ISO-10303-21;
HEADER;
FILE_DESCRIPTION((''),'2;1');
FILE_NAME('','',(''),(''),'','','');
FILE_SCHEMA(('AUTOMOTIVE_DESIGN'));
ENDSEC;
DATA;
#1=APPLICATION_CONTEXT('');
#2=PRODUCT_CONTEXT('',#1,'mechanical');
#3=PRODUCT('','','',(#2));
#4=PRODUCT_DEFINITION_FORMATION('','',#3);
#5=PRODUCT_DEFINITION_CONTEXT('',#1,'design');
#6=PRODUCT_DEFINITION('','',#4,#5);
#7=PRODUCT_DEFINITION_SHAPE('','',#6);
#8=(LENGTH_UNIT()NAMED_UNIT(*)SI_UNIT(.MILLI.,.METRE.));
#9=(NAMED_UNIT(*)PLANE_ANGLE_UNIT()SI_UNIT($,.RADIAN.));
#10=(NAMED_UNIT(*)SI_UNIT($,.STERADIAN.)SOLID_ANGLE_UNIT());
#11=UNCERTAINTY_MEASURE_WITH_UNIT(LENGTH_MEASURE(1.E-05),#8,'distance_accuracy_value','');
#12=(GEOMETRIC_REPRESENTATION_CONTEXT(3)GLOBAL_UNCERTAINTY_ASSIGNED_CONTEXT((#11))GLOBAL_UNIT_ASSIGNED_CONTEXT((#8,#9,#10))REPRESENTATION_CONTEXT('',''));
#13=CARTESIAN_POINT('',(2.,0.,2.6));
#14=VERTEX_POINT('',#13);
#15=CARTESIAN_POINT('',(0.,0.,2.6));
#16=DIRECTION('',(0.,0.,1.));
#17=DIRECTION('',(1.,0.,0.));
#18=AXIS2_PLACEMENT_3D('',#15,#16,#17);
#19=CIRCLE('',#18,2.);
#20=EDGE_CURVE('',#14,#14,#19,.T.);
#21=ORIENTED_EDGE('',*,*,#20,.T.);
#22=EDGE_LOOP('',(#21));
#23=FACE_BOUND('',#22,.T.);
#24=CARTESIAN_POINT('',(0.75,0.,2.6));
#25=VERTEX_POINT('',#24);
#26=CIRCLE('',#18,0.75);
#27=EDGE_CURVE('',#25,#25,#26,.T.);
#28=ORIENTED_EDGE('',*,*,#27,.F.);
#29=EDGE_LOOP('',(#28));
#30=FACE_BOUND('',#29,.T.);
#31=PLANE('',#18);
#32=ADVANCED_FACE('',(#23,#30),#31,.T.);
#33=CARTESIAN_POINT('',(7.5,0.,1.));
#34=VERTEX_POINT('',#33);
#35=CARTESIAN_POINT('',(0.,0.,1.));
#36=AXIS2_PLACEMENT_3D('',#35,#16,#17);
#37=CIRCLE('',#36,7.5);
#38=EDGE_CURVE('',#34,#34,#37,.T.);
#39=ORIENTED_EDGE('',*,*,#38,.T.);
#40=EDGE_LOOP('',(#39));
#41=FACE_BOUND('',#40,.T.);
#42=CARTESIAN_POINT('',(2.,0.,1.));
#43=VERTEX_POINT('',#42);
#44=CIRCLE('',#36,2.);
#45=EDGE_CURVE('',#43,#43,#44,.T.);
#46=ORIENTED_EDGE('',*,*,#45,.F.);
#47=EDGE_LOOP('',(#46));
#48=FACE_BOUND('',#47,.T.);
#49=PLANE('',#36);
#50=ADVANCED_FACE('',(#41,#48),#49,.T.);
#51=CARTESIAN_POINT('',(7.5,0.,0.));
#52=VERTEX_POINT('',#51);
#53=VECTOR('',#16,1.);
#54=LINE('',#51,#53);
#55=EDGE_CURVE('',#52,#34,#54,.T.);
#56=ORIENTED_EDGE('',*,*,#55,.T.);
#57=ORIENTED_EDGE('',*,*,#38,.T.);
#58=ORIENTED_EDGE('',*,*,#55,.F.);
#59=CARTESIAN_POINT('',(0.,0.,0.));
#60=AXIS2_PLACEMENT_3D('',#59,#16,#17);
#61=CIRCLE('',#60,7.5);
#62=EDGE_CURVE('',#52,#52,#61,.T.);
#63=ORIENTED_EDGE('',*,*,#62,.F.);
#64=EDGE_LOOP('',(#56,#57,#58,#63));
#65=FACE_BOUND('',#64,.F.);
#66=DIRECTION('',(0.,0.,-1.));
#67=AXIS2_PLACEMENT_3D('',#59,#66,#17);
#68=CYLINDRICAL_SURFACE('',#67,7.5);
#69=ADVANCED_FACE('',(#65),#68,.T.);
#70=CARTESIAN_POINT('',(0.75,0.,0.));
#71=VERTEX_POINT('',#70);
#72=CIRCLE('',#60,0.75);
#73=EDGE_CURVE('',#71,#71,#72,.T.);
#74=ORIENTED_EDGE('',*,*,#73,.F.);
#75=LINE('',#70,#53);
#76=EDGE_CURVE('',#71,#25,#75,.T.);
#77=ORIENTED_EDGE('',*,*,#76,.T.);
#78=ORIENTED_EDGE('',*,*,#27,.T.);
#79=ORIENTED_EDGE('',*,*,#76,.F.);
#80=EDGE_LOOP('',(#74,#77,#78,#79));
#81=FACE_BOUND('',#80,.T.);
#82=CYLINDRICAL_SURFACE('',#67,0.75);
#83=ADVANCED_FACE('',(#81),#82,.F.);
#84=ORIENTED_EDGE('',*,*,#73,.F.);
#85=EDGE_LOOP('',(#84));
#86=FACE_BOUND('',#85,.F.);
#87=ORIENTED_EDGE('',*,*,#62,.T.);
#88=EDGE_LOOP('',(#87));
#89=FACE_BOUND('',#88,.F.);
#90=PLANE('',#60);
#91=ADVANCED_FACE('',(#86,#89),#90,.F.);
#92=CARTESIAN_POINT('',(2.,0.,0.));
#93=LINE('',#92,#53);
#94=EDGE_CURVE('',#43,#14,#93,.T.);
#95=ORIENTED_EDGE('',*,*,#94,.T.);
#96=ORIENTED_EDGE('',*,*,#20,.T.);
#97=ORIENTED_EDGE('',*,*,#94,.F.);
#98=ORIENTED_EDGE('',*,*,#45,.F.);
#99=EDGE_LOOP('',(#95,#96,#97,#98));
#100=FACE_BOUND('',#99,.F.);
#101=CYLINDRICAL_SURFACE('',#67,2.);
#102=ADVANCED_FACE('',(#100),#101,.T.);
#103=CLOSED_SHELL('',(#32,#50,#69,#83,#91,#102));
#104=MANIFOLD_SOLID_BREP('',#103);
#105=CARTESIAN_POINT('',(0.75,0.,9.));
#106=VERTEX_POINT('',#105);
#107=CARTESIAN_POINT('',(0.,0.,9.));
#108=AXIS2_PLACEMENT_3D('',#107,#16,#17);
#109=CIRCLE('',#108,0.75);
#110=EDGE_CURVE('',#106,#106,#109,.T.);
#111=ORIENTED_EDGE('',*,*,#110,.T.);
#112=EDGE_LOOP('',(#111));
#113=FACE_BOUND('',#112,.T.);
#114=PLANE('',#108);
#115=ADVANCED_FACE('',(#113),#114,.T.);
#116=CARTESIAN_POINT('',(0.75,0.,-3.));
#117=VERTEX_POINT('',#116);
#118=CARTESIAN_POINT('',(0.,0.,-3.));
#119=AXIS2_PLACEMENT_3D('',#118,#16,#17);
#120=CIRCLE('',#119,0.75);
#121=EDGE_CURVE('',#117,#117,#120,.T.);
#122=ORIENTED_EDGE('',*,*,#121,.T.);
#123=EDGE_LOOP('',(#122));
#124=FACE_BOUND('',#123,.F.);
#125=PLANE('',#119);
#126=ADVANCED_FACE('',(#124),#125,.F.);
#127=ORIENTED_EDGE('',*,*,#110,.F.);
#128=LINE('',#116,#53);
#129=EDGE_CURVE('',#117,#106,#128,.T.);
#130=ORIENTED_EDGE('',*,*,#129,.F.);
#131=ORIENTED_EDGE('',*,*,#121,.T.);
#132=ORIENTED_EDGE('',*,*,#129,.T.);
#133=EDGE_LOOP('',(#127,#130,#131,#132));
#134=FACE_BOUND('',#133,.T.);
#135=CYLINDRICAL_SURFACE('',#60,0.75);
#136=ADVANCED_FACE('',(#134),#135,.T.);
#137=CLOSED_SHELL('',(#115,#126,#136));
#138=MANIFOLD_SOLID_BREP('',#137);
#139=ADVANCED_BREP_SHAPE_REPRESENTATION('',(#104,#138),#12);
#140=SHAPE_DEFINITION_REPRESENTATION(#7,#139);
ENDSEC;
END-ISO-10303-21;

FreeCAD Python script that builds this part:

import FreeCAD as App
import Part
import Sketcher

V = App.Vector
Q = App.Units.Quantity

doc = App.newDocument("Part")
params = doc.addObject("Spreadsheet::Sheet", "Params")
for row, (alias, value) in enumerate([
    ("sketch1_diameter", "15 mm"),
    ("sketch1_diameter2", "4 mm"),
    ("pad1_length", "1 mm"),
    ("sketch2_diameter", "4 mm"),
    ("sketch2_diameter2", "1.5 mm"),
    ("pad2_length", "2.6 mm"),
    ("sketch3_diameter", "1.5 mm"),
    ("pad3_length", "9 mm"),
    ("pad3_length2", "3 mm"),
], start=1):
    params.set(f"A{row}", alias)
    params.set(f"B{row}", "=" + value)
    params.setAlias(f"B{row}", alias)

body = doc.addObject("PartDesign::Body", "Body")

sketch1 = body.newObject("Sketcher::SketchObject", "Sketch")
sketch1.AttachmentSupport = (doc.getObject("XY_Plane"), [""])
sketch1.MapMode = "FlatFace"
sketch1.addGeometry([
    Part.Circle(V(0, 0, 0), V(0, 0, 1), 7.5),
    Part.Circle(V(0, 0, 0), V(0, 0, 1), 2),
], False)
sketch1.addConstraint([
    Sketcher.Constraint("Coincident", 0, 3, -1, 1),
    Sketcher.Constraint("Coincident", 1, 3, -1, 1),
    Sketcher.Constraint("Diameter", 0, Q("15 mm")),
    Sketcher.Constraint("Diameter", 1, Q("4 mm")),
])
sketch1.setExpression("Constraints[2]", "Params.sketch1_diameter")
sketch1.setExpression("Constraints[3]", "Params.sketch1_diameter2")
pad1 = body.newObject("PartDesign::Pad", "Pad")
pad1.Profile = sketch1
pad1.setExpression("Length", "Params.pad1_length")

sketch2 = body.newObject("Sketcher::SketchObject", "Sketch001")
sketch2.AttachmentSupport = (doc.getObject("XY_Plane"), [""])
sketch2.MapMode = "FlatFace"
sketch2.addGeometry([
    Part.Circle(V(0, 0, 0), V(0, 0, 1), 2),
    Part.Circle(V(0, 0, 0), V(0, 0, 1), 0.8),
], False)
sketch2.addConstraint([
    Sketcher.Constraint("Coincident", 0, 3, -1, 1),
    Sketcher.Constraint("Coincident", 1, 3, -1, 1),
    Sketcher.Constraint("Diameter", 0, Q("4 mm")),
    Sketcher.Constraint("Diameter", 1, Q("1.5 mm")),
])
sketch2.setExpression("Constraints[2]", "Params.sketch2_diameter")
sketch2.setExpression("Constraints[3]", "Params.sketch2_diameter2")
pad2 = body.newObject("PartDesign::Pad", "Pad001")
pad2.Profile = sketch2
pad2.setExpression("Length", "Params.pad2_length")
body2 = doc.addObject("PartDesign::Body", "Body001")

sketch3 = body2.newObject("Sketcher::SketchObject", "Sketch002")
sketch3.AttachmentSupport = (doc.getObject("XY_Plane001"), [""])
sketch3.MapMode = "FlatFace"
sketch3.addGeometry(Part.Circle(V(0, 0, 0), V(0, 0, 1), 0.8), False)
sketch3.addConstraint([
    Sketcher.Constraint("Coincident", 0, 3, -1, 1),
    Sketcher.Constraint("Diameter", 0, Q("1.5 mm")),
])
sketch3.setExpression("Constraints[1]", "Params.sketch3_diameter")
pad3 = body2.newObject("PartDesign::Pad", "Pad002")
pad3.Profile = sketch3
pad3.Type = "TwoLengths"
pad3.setExpression("Length", "Params.pad3_length")
pad3.setExpression("Length2", "Params.pad3_length2")

doc.recompute()
